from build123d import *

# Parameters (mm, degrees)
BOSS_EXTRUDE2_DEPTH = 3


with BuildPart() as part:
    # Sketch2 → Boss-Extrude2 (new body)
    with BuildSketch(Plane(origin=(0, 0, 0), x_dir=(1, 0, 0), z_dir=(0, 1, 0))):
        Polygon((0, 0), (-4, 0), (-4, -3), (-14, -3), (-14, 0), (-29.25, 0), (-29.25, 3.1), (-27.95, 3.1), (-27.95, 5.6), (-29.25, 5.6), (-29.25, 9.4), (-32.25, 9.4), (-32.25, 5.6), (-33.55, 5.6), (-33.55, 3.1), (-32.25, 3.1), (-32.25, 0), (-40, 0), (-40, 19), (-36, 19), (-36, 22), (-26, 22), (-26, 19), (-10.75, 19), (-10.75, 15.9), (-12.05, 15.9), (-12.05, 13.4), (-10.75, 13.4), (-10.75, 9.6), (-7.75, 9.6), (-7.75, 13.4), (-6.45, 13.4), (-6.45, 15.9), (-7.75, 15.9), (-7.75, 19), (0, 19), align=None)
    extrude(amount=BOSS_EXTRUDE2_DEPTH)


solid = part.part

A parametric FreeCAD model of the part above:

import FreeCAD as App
import Part
import Sketcher
Q = App.Units.Quantity


def add_polygon(sketch, points):
    """Adds a closed chain of lines whose ends are joined by coincident constraints."""
    first, n = sketch.GeometryCount, len(points)
    for a, b in zip(points, points[1:] + points[:1]):
        sketch.addGeometry(Part.LineSegment(App.Vector(*a, 0), App.Vector(*b, 0)), False)
    for i in range(n):
        sketch.addConstraint(Sketcher.Constraint("Coincident", first + i, 2, first + (i + 1) % n, 1))

doc = App.newDocument("Part")
body = doc.addObject("PartDesign::Body", "Body")

sketch1 = doc.addObject("Sketcher::SketchObject", "Sketch")
body.addObject(sketch1)
sketch1.AttachmentSupport = (doc.XZ_Plane, [""])
sketch1.MapMode = "FlatFace"
add_polygon(sketch1, [(-4, 0), (0, 0), (0, -19), (-7.75, -19), (-7.75, -15.9), (-6.45, -15.9), (-6.45, -13.4), (-7.75, -13.4), (-7.75, -9.6), (-10.75, -9.6), (-10.75, -13.4), (-12.05, -13.4), (-12.05, -15.9), (-10.75, -15.9), (-10.75, -19), (-26, -19), (-26, -22), (-36, -22), (-36, -19), (-40, -19), (-40, 0), (-32.25, 0), (-32.25, -3.1), (-33.55, -3.1), (-33.55, -5.6), (-32.25, -5.6), (-32.25, -9.4), (-29.25, -9.4), (-29.25, -5.6), (-27.95, -5.6), (-27.95, -3.1), (-29.25, -3.1), (-29.25, 0), (-14, 0), (-14, 3), (-4, 3)])
sketch1.addConstraint([
    Sketcher.Constraint("Horizontal", 0),
    Sketcher.Constraint("Vertical", 1),
    Sketcher.Constraint("Horizontal", 2),
    Sketcher.Constraint("Vertical", 3),
    Sketcher.Constraint("Horizontal", 4),
    Sketcher.Constraint("Vertical", 5),
    Sketcher.Constraint("Horizontal", 6),
    Sketcher.Constraint("Vertical", 7),
    Sketcher.Constraint("Horizontal", 8),
    Sketcher.Constraint("Vertical", 9),
    Sketcher.Constraint("Horizontal", 10),
    Sketcher.Constraint("Vertical", 11),
    Sketcher.Constraint("Horizontal", 12),
    Sketcher.Constraint("Vertical", 13),
    Sketcher.Constraint("Horizontal", 14),
    Sketcher.Constraint("Vertical", 15),
    Sketcher.Constraint("Horizontal", 16),
    Sketcher.Constraint("Vertical", 17),
    Sketcher.Constraint("Horizontal", 18),
    Sketcher.Constraint("Vertical", 19),
    Sketcher.Constraint("Horizontal", 20),
    Sketcher.Constraint("Vertical", 21),
    Sketcher.Constraint("Horizontal", 22),
    Sketcher.Constraint("Vertical", 23),
    Sketcher.Constraint("Horizontal", 24),
    Sketcher.Constraint("Vertical", 25),
    Sketcher.Constraint("Horizontal", 26),
    Sketcher.Constraint("Vertical", 27),
    Sketcher.Constraint("Horizontal", 28),
    Sketcher.Constraint("Vertical", 29),
    Sketcher.Constraint("Horizontal", 30),
    Sketcher.Constraint("Vertical", 31),
    Sketcher.Constraint("Horizontal", 32),
    Sketcher.Constraint("Vertical", 33),
    Sketcher.Constraint("Horizontal", 34),
    Sketcher.Constraint("Vertical", 35),
    Sketcher.Constraint("Coincident", 0, 2, -1, 1),
    Sketcher.Constraint("PointOnObject", 19, 2, -1),
    Sketcher.Constraint("PointOnObject", 31, 2, -1),
    Sketcher.Constraint("Horizontal", 6, 2, 9, 2),
    Sketcher.Constraint("Horizontal", 4, 2, 11, 2),
    Sketcher.Constraint("Horizontal", 2, 2, 13, 2),
    Sketcher.Constraint("Horizontal", 14, 2, 17, 2),
    Sketcher.Constraint("Horizontal", 24, 2, 27, 2),
    Sketcher.Constraint("Horizontal", 22, 2, 29, 2),
    Sketcher.Constraint("Vertical", 3, 2, 6, 2),
    Sketcher.Constraint("Vertical", 9, 2, 12, 2),
    Sketcher.Constraint("Vertical", 21, 2, 24, 2),
    Sketcher.Constraint("Vertical", 27, 2, 30, 2),
    Sketcher.Constraint("Equal", 6, 10),
    Sketcher.Constraint("Equal", 0, 18),
    Sketcher.Constraint("Equal", 2, 20),
    Sketcher.Constraint("Equal", 12, 22),
    Sketcher.Constraint("Equal", 8, 26),
    Sketcher.Constraint("Equal", 24, 28),
    Sketcher.Constraint("Equal", 14, 32),
    Sketcher.Constraint("Equal", 26, 15),
    Sketcher.Constraint("Equal", 13, 21),
    Sketcher.Constraint("Equal", 11, 23),
    Sketcher.Constraint("Equal", 9, 25),
    Sketcher.Constraint("Equal", 17, 33),
    Sketcher.Constraint("DistanceX", 0, 1, 0, 2, Q("4 mm")),
    Sketcher.Constraint("DistanceX", 8, 2, 8, 1, Q("3 mm")),
    Sketcher.Constraint("DistanceX", 16, 2, 16, 1, Q("10 mm")),
    Sketcher.Constraint("DistanceY", 1, 2, 1, 1, Q("19 mm")),
    Sketcher.Constraint("DistanceX", 4, 1, 4, 2, Q("1.3 mm")),
    Sketcher.Constraint("DistanceY", 3, 1, 3, 2, Q("3.1 mm")),
    Sketcher.Constraint("DistanceY", 5, 1, 5, 2, Q("2.5 mm")),
    Sketcher.Constraint("DistanceY", 7, 1, 7, 2, Q("3.8 mm")),
    Sketcher.Constraint("DistanceX", 14, 2, -1, 1, Q("26 mm")),
    Sketcher.Constraint("DistanceX", 2, 2, 2, 1, Q("7.75 mm")),
])
pad1 = doc.addObject("PartDesign::Pad", "Pad")
body.addObject(pad1)
pad1.Profile = sketch1
pad1.Length = 3
pad1.Reversed = True

doc.recompute()
